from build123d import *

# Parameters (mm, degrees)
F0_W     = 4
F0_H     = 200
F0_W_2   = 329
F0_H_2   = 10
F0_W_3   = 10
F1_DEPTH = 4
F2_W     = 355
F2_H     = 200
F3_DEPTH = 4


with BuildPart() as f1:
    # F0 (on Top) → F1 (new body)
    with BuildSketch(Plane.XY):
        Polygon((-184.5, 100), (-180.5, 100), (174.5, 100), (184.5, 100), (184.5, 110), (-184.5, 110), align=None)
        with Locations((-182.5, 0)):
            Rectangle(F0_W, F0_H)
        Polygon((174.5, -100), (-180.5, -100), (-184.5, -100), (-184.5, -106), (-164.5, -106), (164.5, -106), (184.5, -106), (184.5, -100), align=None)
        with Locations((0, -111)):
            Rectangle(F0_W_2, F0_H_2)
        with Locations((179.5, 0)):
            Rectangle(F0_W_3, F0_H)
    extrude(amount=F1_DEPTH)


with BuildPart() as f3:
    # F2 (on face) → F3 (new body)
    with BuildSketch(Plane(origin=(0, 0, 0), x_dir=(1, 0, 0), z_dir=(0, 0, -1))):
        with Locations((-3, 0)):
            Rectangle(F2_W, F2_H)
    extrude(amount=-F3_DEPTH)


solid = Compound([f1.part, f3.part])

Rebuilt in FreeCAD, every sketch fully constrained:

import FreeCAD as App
import Part
import Sketcher
Q = App.Units.Quantity

doc = App.newDocument("Part")
body = doc.addObject("PartDesign::Body", "Body")

# Sketch on XY plane
sketch1 = doc.addObject("Sketcher::SketchObject", "Sketch")
body.addObject(sketch1)
sketch1.AttachmentSupport = (doc.XY_Plane, [""])
sketch1.MapMode = "FlatFace"
sketch1.addGeometry([
    Part.LineSegment(App.Vector(184.5, 110, 0), App.Vector(-184.5, 110, 0)),  # 0
    Part.LineSegment(App.Vector(-184.5, 110, 0), App.Vector(-184.5, -106, 0)),  # 1
    Part.LineSegment(App.Vector(-184.5, -106, 0), App.Vector(-164.5, -106, 0)),  # 2
    Part.LineSegment(App.Vector(-164.5, -106, 0), App.Vector(-164.5, -116, 0)),  # 3
    Part.LineSegment(App.Vector(-164.5, -116, 0), App.Vector(164.5, -116, 0)),  # 4
    Part.LineSegment(App.Vector(164.5, -116, 0), App.Vector(164.5, -106, 0)),  # 5
    Part.LineSegment(App.Vector(164.5, -106, 0), App.Vector(184.5, -106, 0)),  # 6
    Part.LineSegment(App.Vector(184.5, -106, 0), App.Vector(184.5, 110, 0)),  # 7
    Part.LineSegment(App.Vector(-180.5, 100, 0), App.Vector(174.5, 100, 0)),  # 8
    Part.LineSegment(App.Vector(174.5, 100, 0), App.Vector(174.5, -100, 0)),  # 9
    Part.LineSegment(App.Vector(174.5, -100, 0), App.Vector(-180.5, -100, 0)),  # 10
    Part.LineSegment(App.Vector(-180.5, -100, 0), App.Vector(-180.5, 100, 0)),  # 11
], False)
sketch1.addConstraint([
    Sketcher.Constraint("Coincident", 0, 2, 1, 1),
    Sketcher.Constraint("Coincident", 1, 2, 2, 1),
    Sketcher.Constraint("Coincident", 2, 2, 3, 1),
    Sketcher.Constraint("Coincident", 3, 2, 4, 1),
    Sketcher.Constraint("Coincident", 4, 2, 5, 1),
    Sketcher.Constraint("Coincident", 5, 2, 6, 1),
    Sketcher.Constraint("Coincident", 6, 2, 7, 1),
    Sketcher.Constraint("Coincident", 7, 2, 0, 1),
    Sketcher.Constraint("Coincident", 8, 2, 9, 1),
    Sketcher.Constraint("Coincident", 9, 2, 10, 1),
    Sketcher.Constraint("Coincident", 10, 2, 11, 1),
    Sketcher.Constraint("Coincident", 11, 2, 8, 1),
    Sketcher.Constraint("Horizontal", 0),
    Sketcher.Constraint("Vertical", 1),
    Sketcher.Constraint("Horizontal", 2),
    Sketcher.Constraint("Vertical", 3),
    Sketcher.Constraint("Horizontal", 4),
    Sketcher.Constraint("Vertical", 5),
    Sketcher.Constraint("Horizontal", 6),
    Sketcher.Constraint("Vertical", 7),
    Sketcher.Constraint("Horizontal", 8),
    Sketcher.Constraint("Vertical", 9),
    Sketcher.Constraint("Horizontal", 10),
    Sketcher.Constraint("Vertical", 11),
    Sketcher.Constraint("Symmetric", 2, 2, 5, 2, -2),
    Sketcher.Constraint("Equal", 2, 6),
    Sketcher.Constraint("DistanceX", 0, 2, 0, 1, Q("369 mm")),
    Sketcher.Constraint("DistanceX", 2, 1, 2, 2, Q("20 mm")),
    Sketcher.Constraint("DistanceX", 8, 1, 8, 2, Q("355 mm")),
    Sketcher.Constraint("DistanceY", 1, 2, 1, 1, Q("216 mm")),
    Sketcher.Constraint("DistanceY", 3, 2, 3, 1, Q("10 mm")),
    Sketcher.Constraint("DistanceY", 9, 2, 9, 1, Q("200 mm")),
    Sketcher.Constraint("DistanceY", -1, 1, 0, 2, Q("110 mm")),
    Sketcher.Constraint("DistanceY", -1, 1, 8, 2, Q("100 mm")),
    Sketcher.Constraint("DistanceX", 8, 2, 7, 2, Q("10 mm")),
])
pad1 = doc.addObject("PartDesign::Pad", "Pad")
body.addObject(pad1)
pad1.Profile = sketch1
pad1.Length = 4
body2 = doc.addObject("PartDesign::Body", "Body001")

# Sketch on XY plane
sketch2 = doc.addObject("Sketcher::SketchObject", "Sketch001")
body2.addObject(sketch2)
sketch2.AttachmentSupport = (doc.getObject("XY_Plane001"), [""])
sketch2.MapMode = "FlatFace"
sketch2.addGeometry([
    Part.LineSegment(App.Vector(-180.5, -100, 0), App.Vector(-180.5, 100, 0)),
    Part.LineSegment(App.Vector(-180.5, 100, 0), App.Vector(174.5, 100, 0)),
    Part.LineSegment(App.Vector(174.5, 100, 0), App.Vector(174.5, -100, 0)),
    Part.LineSegment(App.Vector(174.5, -100, 0), App.Vector(-180.5, -100, 0)),
], False)
sketch2.addConstraint([
    Sketcher.Constraint("Coincident", 0, 2, 1, 1),
    Sketcher.Constraint("Coincident", 1, 2, 2, 1),
    Sketcher.Constraint("Coincident", 2, 2, 3, 1),
    Sketcher.Constraint("Coincident", 3, 2, 0, 1),
    Sketcher.Constraint("Vertical", 0),
    Sketcher.Constraint("Horizontal", 1),
    Sketcher.Constraint("Vertical", 2),
    Sketcher.Constraint("Horizontal", 3),
    Sketcher.Constraint("DistanceX", 1, 1, 1, 2, Q("355 mm")),
    Sketcher.Constraint("DistanceY", 0, 1, 0, 2, Q("200 mm")),
    Sketcher.Constraint("DistanceY", -1, 1, 0, 2, Q("100 mm")),
    Sketcher.Constraint("DistanceX", 0, 2, -1, 1, Q("180.5 mm")),
])
pad2 = doc.addObject("PartDesign::Pad", "Pad001")
body2.addObject(pad2)
pad2.Profile = sketch2
pad2.Length = 4

doc.recompute()
